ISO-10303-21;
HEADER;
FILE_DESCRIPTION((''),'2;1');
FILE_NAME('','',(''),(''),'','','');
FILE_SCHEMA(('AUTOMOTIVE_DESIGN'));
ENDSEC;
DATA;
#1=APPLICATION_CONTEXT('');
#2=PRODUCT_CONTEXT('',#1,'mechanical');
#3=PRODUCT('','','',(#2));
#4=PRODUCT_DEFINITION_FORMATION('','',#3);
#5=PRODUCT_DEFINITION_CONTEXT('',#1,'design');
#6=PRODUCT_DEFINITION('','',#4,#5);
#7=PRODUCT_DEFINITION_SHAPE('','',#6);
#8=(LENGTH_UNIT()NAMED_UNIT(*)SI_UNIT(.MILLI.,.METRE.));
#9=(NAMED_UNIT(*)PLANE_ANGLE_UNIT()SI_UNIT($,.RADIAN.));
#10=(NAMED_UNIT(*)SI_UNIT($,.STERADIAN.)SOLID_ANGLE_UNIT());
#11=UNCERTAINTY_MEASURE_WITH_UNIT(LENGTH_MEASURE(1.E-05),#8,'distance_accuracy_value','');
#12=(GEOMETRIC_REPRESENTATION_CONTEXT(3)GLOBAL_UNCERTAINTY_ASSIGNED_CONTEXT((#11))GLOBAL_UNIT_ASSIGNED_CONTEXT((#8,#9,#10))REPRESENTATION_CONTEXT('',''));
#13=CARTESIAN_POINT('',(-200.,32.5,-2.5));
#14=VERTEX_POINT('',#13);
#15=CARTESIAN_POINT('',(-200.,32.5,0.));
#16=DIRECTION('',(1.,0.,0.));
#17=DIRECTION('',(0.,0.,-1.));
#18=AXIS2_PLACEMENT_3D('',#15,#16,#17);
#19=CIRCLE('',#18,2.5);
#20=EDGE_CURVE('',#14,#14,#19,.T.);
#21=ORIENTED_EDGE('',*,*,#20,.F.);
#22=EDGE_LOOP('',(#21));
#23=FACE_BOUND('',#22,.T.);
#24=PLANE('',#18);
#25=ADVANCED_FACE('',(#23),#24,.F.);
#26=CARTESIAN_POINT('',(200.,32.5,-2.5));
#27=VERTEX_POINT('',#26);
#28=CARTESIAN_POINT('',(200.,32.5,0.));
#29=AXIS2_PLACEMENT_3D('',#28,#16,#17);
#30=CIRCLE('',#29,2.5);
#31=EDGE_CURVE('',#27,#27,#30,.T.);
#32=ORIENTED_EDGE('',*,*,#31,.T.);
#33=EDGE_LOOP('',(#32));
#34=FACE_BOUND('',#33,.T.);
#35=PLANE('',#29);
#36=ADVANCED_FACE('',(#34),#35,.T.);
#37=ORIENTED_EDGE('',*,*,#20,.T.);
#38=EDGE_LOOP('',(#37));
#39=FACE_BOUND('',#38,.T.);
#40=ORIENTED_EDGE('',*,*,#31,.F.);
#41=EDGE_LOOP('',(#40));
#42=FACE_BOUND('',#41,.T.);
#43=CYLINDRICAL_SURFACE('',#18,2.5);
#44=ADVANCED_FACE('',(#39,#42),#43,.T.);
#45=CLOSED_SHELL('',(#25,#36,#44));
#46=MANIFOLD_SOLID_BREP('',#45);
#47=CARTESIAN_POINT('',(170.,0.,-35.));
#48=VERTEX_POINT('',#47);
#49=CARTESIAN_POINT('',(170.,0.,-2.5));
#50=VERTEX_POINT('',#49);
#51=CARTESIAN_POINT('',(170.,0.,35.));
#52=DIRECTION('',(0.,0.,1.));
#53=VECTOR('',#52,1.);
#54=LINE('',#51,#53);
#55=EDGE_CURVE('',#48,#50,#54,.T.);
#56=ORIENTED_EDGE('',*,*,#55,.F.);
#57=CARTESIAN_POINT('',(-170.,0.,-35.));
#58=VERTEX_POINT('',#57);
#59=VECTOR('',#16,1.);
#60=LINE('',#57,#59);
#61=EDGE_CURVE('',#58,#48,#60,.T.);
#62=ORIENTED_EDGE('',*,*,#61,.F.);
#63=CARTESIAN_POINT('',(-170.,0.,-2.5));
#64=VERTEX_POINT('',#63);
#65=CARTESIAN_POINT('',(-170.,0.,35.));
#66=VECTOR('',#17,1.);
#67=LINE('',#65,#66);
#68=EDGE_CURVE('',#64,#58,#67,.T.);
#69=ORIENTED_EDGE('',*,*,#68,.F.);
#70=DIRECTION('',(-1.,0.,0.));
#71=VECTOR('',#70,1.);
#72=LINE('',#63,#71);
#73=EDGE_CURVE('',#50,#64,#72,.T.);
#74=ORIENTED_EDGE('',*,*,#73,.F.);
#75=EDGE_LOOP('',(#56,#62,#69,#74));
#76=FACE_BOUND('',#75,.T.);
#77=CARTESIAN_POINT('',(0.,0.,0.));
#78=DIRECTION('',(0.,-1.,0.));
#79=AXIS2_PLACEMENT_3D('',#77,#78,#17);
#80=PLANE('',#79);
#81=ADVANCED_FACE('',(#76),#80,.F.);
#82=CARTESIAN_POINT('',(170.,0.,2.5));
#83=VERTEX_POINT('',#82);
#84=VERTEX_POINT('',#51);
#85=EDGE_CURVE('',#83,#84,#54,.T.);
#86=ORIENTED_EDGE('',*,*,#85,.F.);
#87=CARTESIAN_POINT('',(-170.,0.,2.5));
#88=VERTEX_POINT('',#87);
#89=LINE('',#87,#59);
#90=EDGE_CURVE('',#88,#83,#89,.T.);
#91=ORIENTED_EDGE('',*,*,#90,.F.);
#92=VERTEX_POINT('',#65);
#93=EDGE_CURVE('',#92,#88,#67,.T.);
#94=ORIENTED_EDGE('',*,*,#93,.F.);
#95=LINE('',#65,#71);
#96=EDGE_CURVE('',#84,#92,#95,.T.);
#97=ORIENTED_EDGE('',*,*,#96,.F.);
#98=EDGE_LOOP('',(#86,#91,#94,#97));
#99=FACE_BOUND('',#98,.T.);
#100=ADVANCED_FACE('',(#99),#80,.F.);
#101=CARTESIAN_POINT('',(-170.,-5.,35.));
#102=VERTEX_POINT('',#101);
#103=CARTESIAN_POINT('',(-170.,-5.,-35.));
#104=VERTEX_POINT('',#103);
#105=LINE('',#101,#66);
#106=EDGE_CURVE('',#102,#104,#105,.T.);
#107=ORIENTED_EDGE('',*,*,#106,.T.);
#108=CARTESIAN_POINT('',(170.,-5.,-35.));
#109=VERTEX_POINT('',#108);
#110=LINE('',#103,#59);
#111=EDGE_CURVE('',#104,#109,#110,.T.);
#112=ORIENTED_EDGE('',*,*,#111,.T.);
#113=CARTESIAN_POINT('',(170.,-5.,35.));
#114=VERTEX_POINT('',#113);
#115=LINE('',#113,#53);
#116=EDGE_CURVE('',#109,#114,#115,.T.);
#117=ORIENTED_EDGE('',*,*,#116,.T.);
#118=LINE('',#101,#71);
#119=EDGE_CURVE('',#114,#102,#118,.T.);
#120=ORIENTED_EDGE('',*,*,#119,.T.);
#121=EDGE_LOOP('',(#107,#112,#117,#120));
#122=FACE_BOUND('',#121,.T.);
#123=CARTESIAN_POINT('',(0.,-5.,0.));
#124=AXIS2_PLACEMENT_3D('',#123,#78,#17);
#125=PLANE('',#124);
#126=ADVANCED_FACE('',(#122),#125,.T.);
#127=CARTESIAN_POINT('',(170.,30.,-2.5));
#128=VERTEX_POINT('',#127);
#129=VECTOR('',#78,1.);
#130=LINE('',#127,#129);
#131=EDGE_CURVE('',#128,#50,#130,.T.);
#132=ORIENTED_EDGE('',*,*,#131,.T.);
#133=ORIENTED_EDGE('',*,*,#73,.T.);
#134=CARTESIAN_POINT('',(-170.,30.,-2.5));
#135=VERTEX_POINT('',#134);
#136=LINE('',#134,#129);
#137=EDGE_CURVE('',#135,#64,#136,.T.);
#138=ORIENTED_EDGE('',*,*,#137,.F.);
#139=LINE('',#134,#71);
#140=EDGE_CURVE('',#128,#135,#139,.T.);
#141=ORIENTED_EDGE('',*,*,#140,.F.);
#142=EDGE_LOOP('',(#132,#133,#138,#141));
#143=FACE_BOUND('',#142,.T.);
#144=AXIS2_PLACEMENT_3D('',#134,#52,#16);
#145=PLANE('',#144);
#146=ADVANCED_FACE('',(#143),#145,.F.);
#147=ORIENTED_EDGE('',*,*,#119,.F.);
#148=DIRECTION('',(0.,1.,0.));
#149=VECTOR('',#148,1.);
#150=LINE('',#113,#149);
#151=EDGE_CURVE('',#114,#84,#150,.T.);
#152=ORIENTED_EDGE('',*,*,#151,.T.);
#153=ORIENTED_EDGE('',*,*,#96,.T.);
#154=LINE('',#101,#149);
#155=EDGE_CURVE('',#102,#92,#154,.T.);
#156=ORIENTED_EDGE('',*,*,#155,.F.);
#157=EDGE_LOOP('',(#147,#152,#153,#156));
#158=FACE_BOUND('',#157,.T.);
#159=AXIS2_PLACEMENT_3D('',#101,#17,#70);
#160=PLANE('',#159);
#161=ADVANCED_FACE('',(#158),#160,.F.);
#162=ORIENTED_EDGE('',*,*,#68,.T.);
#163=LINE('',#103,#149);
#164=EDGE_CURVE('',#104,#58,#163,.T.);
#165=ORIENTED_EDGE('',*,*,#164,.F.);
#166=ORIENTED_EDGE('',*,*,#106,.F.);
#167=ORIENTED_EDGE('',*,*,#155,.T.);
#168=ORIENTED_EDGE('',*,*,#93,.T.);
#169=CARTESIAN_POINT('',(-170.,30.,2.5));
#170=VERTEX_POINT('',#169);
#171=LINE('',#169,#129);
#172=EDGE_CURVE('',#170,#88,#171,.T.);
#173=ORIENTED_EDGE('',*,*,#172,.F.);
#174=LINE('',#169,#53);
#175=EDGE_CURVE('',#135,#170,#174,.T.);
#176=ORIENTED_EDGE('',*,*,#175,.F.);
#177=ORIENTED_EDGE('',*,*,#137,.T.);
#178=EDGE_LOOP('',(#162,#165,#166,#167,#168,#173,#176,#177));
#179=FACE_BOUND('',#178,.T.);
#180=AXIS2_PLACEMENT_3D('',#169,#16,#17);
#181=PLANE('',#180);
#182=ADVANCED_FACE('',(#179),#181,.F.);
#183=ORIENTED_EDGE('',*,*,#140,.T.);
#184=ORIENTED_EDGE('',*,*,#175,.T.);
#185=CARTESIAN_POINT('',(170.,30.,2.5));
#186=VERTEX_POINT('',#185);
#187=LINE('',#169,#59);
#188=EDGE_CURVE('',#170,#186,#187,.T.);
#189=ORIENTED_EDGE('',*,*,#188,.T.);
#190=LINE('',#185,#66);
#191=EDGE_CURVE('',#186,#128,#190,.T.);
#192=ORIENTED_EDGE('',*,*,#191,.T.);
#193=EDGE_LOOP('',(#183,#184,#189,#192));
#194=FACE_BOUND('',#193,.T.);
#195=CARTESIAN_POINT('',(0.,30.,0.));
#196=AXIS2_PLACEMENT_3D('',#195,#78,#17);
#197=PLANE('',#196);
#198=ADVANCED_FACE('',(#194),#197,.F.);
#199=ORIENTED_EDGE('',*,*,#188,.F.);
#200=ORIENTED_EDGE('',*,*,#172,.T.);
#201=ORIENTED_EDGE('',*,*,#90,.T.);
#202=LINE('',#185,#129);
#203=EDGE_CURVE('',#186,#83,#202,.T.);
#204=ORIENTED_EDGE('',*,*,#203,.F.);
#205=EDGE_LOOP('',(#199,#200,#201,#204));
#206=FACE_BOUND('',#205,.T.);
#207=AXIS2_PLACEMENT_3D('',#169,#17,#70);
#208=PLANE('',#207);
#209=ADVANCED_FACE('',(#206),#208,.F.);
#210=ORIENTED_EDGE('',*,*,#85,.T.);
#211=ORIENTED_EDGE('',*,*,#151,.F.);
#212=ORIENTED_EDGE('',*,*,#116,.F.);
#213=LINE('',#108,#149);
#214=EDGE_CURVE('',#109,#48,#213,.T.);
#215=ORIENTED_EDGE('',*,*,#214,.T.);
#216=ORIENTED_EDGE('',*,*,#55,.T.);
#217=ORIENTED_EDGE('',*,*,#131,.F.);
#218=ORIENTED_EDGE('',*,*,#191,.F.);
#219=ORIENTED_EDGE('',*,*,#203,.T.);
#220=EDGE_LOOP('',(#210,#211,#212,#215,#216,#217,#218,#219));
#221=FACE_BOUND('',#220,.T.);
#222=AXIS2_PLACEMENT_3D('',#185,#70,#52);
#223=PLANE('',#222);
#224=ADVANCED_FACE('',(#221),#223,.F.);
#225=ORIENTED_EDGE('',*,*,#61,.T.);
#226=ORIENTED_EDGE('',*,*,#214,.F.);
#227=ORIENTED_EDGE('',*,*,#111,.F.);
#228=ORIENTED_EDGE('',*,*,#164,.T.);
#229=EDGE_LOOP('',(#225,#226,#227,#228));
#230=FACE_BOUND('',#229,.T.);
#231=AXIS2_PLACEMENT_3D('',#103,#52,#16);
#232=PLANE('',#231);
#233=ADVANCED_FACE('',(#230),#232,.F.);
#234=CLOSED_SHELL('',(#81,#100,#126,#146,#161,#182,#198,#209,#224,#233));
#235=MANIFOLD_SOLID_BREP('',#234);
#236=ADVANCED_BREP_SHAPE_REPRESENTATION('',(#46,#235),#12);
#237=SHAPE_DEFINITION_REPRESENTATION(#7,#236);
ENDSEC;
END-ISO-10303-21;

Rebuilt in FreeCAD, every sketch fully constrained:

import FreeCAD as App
import Part
import Sketcher
from FreeCAD import Vector


def add_polygon(sketch, points):
    """Adds a closed chain of lines whose ends are joined by coincident constraints."""
    first, n = sketch.GeometryCount, len(points)
    for a, b in zip(points, points[1:] + points[:1]):
        sketch.addGeometry(Part.LineSegment(App.Vector(*a, 0), App.Vector(*b, 0)), False)
    for i in range(n):
        sketch.addConstraint(Sketcher.Constraint("Coincident", first + i, 2, first + (i + 1) % n, 1))

doc = App.newDocument("Part")
body = doc.addObject("PartDesign::Body", "Body")

# Sketch on XZ plane
sketch1 = body.newObject("Sketcher::SketchObject", "Sketch")
sketch1.AttachmentSupport = (doc.getObject("XZ_Plane"), [""])
sketch1.MapMode = "FlatFace"
add_polygon(sketch1, [(-170, -2), (-170, 2), (170, 2), (170, -2)])  # lines 0-3
sketch1.addConstraint(Sketcher.Constraint("Vertical", 0))
sketch1.addConstraint(Sketcher.Constraint("Horizontal", 1))
sketch1.addConstraint(Sketcher.Constraint("Vertical", 2))
sketch1.addConstraint(Sketcher.Constraint("Horizontal", 3))
sketch1.addConstraint(Sketcher.Constraint("Symmetric", 0, 2, 2, 2, -1, 1))
sketch1.addConstraint(Sketcher.Constraint("DistanceX", 1, 1, 1, 2, 340.0))
sketch1.addConstraint(Sketcher.Constraint("DistanceY", 0, 1, 0, 2, 5.0))
pad1 = body.newObject("PartDesign::Pad", "Pad")
pad1.Profile = sketch1
pad1.Length = 30
pad1.Reversed = True

# Sketch on XZ plane
sketch2 = body.newObject("Sketcher::SketchObject", "Sketch001")
sketch2.AttachmentSupport = (doc.getObject("XZ_Plane"), [""])
sketch2.MapMode = "FlatFace"
add_polygon(sketch2, [(-170, 35), (-170, -35), (170, -35), (170, 35)])  # lines 0-3
sketch2.addConstraint(Sketcher.Constraint("Vertical", 0))
sketch2.addConstraint(Sketcher.Constraint("Horizontal", 1))
sketch2.addConstraint(Sketcher.Constraint("Vertical", 2))
sketch2.addConstraint(Sketcher.Constraint("Horizontal", 3))
sketch2.addConstraint(Sketcher.Constraint("Symmetric", 0, 2, 2, 2, -1, 1))
sketch2.addConstraint(Sketcher.Constraint("DistanceX", 1, 1, 1, 2, 340.0))
sketch2.addConstraint(Sketcher.Constraint("DistanceY", 0, 2, 0, 1, 70.0))
pad2 = body.newObject("PartDesign::Pad", "Pad001")
pad2.Profile = sketch2
pad2.Length = 5
body2 = doc.addObject("PartDesign::Body", "Body001")

# Sketch on YZ plane
sketch3 = body2.newObject("Sketcher::SketchObject", "Sketch002")
sketch3.AttachmentSupport = (doc.getObject("YZ_Plane001"), [""])
sketch3.MapMode = "FlatFace"
sketch3.AttachmentOffset = App.Placement(Vector(0, 0, 170), App.Rotation())
sketch3.addGeometry(Part.Circle(Vector(32.5, 0, 0), Vector(0, 0, 1), 2.5), False)
sketch3.addConstraint(Sketcher.Constraint("PointOnObject", 0, 3, -1))
sketch3.addConstraint(Sketcher.Constraint("Diameter", 0, 5.0))
sketch3.addConstraint(Sketcher.Constraint("DistanceX", -1, 1, 0, 3, 32.5))
pad3 = body2.newObject("PartDesign::Pad", "Pad002")
pad3.Profile = sketch3
pad3.Type = "TwoLengths"
pad3.Length = 30
pad3.Length2 = 370

doc.recompute()
